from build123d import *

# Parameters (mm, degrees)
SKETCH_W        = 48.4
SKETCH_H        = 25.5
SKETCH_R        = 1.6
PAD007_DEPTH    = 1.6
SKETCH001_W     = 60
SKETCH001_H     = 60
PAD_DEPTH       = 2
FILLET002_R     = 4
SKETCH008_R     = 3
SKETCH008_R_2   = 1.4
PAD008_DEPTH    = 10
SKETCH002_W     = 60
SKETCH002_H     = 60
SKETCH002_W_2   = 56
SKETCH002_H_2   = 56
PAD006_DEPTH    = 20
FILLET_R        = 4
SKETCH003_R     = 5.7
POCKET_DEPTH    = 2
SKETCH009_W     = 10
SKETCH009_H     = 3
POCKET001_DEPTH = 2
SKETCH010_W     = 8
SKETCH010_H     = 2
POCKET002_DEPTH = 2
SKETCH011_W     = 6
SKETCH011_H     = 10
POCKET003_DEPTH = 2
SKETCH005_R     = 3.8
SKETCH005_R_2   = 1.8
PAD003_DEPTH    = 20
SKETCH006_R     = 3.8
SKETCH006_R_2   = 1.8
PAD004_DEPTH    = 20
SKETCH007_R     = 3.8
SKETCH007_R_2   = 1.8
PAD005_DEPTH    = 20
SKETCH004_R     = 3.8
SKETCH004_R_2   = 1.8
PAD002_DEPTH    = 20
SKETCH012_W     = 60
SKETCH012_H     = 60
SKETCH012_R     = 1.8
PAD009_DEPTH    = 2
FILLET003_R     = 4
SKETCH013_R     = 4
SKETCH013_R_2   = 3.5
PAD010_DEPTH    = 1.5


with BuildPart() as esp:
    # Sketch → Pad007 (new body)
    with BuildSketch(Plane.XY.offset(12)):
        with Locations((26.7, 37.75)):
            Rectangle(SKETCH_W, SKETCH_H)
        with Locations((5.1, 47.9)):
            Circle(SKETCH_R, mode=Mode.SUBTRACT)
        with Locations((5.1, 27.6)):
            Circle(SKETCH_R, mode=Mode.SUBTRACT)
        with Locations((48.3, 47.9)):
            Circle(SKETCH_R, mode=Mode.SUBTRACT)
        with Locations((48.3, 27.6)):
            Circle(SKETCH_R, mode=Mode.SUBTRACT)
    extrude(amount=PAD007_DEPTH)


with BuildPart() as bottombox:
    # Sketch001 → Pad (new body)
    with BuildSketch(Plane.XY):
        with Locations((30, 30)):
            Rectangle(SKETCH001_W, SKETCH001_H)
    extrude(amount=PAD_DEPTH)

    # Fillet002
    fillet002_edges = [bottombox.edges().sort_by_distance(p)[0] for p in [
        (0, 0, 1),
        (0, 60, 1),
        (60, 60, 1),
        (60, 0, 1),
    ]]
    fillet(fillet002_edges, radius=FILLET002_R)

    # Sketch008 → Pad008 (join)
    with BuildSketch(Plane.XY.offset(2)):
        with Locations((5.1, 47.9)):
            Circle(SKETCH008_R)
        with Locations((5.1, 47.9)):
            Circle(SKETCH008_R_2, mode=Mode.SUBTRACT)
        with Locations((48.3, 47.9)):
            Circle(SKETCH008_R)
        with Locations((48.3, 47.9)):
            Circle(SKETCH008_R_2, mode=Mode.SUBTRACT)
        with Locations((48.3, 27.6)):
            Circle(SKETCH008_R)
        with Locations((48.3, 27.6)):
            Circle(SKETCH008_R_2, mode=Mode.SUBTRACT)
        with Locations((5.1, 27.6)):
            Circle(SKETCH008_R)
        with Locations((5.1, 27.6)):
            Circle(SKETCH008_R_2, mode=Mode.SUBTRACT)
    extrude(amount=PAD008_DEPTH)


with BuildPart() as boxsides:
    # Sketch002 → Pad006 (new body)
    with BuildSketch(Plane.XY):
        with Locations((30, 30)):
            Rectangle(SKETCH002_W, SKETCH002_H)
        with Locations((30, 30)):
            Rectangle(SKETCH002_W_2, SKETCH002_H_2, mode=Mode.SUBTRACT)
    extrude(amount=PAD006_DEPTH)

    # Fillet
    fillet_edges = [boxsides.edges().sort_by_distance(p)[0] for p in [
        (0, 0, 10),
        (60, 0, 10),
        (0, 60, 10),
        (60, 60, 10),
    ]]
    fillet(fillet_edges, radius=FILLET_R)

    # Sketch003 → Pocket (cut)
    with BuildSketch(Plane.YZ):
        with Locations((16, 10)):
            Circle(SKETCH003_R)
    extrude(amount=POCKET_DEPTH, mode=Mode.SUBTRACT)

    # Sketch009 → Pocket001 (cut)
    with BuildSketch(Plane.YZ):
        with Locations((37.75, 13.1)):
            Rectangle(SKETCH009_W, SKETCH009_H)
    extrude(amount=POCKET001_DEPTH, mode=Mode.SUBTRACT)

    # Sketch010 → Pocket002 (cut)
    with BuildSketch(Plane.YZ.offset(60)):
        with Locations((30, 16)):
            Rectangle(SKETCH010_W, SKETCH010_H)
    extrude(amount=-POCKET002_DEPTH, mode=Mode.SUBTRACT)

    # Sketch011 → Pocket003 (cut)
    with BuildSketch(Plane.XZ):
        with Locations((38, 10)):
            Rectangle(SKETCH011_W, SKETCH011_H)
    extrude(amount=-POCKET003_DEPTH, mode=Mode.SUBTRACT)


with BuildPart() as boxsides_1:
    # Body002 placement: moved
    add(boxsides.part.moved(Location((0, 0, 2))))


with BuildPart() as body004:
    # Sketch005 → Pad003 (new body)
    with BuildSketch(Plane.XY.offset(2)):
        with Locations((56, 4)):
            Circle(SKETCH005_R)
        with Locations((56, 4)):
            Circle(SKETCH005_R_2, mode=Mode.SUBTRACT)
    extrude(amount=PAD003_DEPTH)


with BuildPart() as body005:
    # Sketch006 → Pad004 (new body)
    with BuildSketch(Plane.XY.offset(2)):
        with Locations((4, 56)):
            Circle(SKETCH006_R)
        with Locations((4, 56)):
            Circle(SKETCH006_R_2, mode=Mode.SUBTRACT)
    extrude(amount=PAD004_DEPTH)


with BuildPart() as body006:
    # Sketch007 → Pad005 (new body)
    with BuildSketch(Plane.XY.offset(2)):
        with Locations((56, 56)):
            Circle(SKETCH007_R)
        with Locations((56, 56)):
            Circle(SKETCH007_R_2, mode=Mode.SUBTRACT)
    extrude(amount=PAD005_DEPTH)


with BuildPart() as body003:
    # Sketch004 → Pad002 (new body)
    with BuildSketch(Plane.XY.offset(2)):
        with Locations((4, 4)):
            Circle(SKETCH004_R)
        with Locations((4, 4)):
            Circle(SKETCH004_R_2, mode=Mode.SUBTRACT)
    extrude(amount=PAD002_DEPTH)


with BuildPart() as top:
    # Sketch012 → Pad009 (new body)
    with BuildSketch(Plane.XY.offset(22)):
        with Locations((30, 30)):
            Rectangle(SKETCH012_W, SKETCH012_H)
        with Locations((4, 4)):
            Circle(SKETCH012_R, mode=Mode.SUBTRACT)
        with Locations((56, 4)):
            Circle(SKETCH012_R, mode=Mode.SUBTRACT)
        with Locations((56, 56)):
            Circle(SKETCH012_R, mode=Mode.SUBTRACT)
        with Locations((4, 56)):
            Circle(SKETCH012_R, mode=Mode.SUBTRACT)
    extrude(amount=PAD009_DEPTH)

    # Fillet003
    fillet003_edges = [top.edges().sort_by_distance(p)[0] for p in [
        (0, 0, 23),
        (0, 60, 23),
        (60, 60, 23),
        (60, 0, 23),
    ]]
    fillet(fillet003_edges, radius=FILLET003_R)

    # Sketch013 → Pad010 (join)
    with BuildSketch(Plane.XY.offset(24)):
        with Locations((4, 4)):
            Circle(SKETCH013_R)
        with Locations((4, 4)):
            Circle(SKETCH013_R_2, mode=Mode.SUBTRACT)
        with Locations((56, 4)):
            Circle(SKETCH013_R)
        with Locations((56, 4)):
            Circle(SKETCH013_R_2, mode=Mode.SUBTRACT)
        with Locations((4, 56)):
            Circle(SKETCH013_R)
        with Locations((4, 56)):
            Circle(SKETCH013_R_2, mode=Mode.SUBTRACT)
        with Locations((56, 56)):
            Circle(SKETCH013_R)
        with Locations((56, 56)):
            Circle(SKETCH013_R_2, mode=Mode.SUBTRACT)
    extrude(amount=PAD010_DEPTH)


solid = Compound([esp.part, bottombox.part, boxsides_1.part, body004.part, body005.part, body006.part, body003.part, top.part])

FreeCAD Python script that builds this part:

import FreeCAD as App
import Part
import Sketcher


def edges_at(feature, points):
    """Names of the edges that pass closest to the given points."""
    edges = feature.Shape.Edges
    near = lambda p: min(range(len(edges)), key=lambda i: edges[i].distToShape(Part.Vertex(*p))[0])
    return sorted({f"Edge{near(p) + 1}" for p in points})


def add_polygon(sketch, points):
    """Adds a closed chain of lines whose ends are joined by coincident constraints."""
    first, n = sketch.GeometryCount, len(points)
    for a, b in zip(points, points[1:] + points[:1]):
        sketch.addGeometry(Part.LineSegment(App.Vector(*a, 0), App.Vector(*b, 0)), False)
    for i in range(n):
        sketch.addConstraint(Sketcher.Constraint("Coincident", first + i, 2, first + (i + 1) % n, 1))

doc = App.newDocument("Part")
body = doc.addObject("PartDesign::Body", "Body")

sketch1 = body.newObject("Sketcher::SketchObject", "Sketch")
sketch1.AttachmentSupport = (doc.getObject("XY_Plane"), [""])
sketch1.MapMode = "FlatFace"
sketch1.AttachmentOffset = App.Placement(App.Vector(0, 0, 12), App.Rotation())
add_polygon(sketch1, [(2.5, 50.5), (2.5, 25), (50.9, 25), (50.9, 50.5)])
sketch1.addGeometry(Part.Circle(App.Vector(5.1, 27.6, 0), App.Vector(0, 0, 1), 1.6), False)
sketch1.addGeometry(Part.Circle(App.Vector(48.3, 27.6, 0), App.Vector(0, 0, 1), 1.6), False)
sketch1.addGeometry(Part.Circle(App.Vector(5.1, 47.9, 0), App.Vector(0, 0, 1), 1.6), False)
sketch1.addGeometry(Part.Circle(App.Vector(48.3, 47.9, 0), App.Vector(0, 0, 1), 1.6), False)
sketch1.addConstraint([
    Sketcher.Constraint("Vertical", 0),
    Sketcher.Constraint("Horizontal", 1),
    Sketcher.Constraint("Vertical", 2),
    Sketcher.Constraint("Horizontal", 3),
    Sketcher.Constraint("Equal", 4, 5),
    Sketcher.Constraint("Equal", 5, 6),
    Sketcher.Constraint("Equal", 6, 7),
    Sketcher.Constraint("Horizontal", 4, 3, 5, 3),
    Sketcher.Constraint("Horizontal", 6, 3, 7, 3),
    Sketcher.Constraint("Vertical", 4, 3, 6, 3),
    Sketcher.Constraint("Vertical", 5, 3, 7, 3),
    Sketcher.Constraint("Diameter", 4, 3.2),
    Sketcher.Constraint("DistanceX", 1, 1, 1, 2, 48.4),
    Sketcher.Constraint("DistanceY", 0, 2, 0, 1, 25.5),
    Sketcher.Constraint("DistanceY", -1, 1, 0, 2, 25.0),
    Sketcher.Constraint("DistanceX", -1, 1, 4, 3, 5.1),
    Sketcher.Constraint("DistanceY", -1, 1, 4, 3, 27.6),
    Sketcher.Constraint("DistanceX", -1, 1, 5, 3, 48.3),
    Sketcher.Constraint("DistanceY", -1, 1, 6, 3, 47.9),
    Sketcher.Constraint("DistanceX", -1, 1, 0, 2, 2.5),
])
pad1 = body.newObject("PartDesign::Pad", "Pad")
pad1.Profile = sketch1
pad1.Length = 1.6
body2 = doc.addObject("PartDesign::Body", "Body001")

sketch2 = body2.newObject("Sketcher::SketchObject", "Sketch001")
sketch2.AttachmentSupport = (doc.getObject("XY_Plane001"), [""])
sketch2.MapMode = "FlatFace"
add_polygon(sketch2, [(0, 60), (0, 0), (60, 0), (60, 60)])
sketch2.addConstraint([
    Sketcher.Constraint("Vertical", 0),
    Sketcher.Constraint("Horizontal", 1),
    Sketcher.Constraint("Vertical", 2),
    Sketcher.Constraint("Horizontal", 3),
    Sketcher.Constraint("Coincident", 0, 2, -1, 1),
    Sketcher.Constraint("Equal", 3, 0),
    Sketcher.Constraint("DistanceX", 1, 1, 1, 2, 60.0),
])
pad2 = body2.newObject("PartDesign::Pad", "Pad001")
pad2.Profile = sketch2
pad2.Length = 2
doc.recompute()

fillet = body2.newObject("PartDesign::Fillet", "Fillet")
fillet.Base = (pad2, edges_at(pad2, [
    (0, 0, 1),
    (0, 60, 1),
    (60, 60, 1),
    (60, 0, 1),
]))
fillet.Radius = 4

sketch3 = body2.newObject("Sketcher::SketchObject", "Sketch002")
sketch3.AttachmentSupport = (doc.getObject("XY_Plane001"), [""])
sketch3.MapMode = "FlatFace"
sketch3.AttachmentOffset = App.Placement(App.Vector(0, 0, 2), App.Rotation())
sketch3.addGeometry([
    Part.Circle(App.Vector(5.1, 47.9, 0), App.Vector(0, 0, 1), 3),
    Part.Circle(App.Vector(5.1, 47.9, 0), App.Vector(0, 0, 1), 1.4),
    Part.Circle(App.Vector(48.3, 47.9, 0), App.Vector(0, 0, 1), 3),
    Part.Circle(App.Vector(48.3, 47.9, 0), App.Vector(0, 0, 1), 1.4),
    Part.Circle(App.Vector(48.3, 27.6, 0), App.Vector(0, 0, 1), 3),
    Part.Circle(App.Vector(48.3, 27.6, 0), App.Vector(0, 0, 1), 1.4),
    Part.Circle(App.Vector(5.1, 27.6, 0), App.Vector(0, 0, 1), 3),
    Part.Circle(App.Vector(5.1, 27.6, 0), App.Vector(0, 0, 1), 1.4),
], False)
sketch3.addConstraint([
    Sketcher.Constraint("Coincident", 1, 3, 0, 3),
    Sketcher.Constraint("Coincident", 3, 3, 2, 3),
    Sketcher.Constraint("Coincident", 5, 3, 4, 3),
    Sketcher.Constraint("Coincident", 7, 3, 6, 3),
    Sketcher.Constraint("Equal", 0, 2),
    Sketcher.Constraint("Equal", 1, 3),
    Sketcher.Constraint("Equal", 2, 4),
    Sketcher.Constraint("Equal", 3, 5),
    Sketcher.Constraint("Equal", 4, 6),
    Sketcher.Constraint("Equal", 5, 7),
    Sketcher.Constraint("Horizontal", 1, 3, 2, 3),
    Sketcher.Constraint("Horizontal", 5, 3, 6, 3),
    Sketcher.Constraint("Vertical", 3, 3, 4, 3),
    Sketcher.Constraint("Vertical", 1, 3, 6, 3),
    Sketcher.Constraint("Diameter", 0, 6.0),
    Sketcher.Constraint("Diameter", 1, 2.8),
    Sketcher.Constraint("DistanceX", -1, 1, 0, 3, 5.1),
    Sketcher.Constraint("DistanceY", -1, 1, 0, 3, 47.9),
    Sketcher.Constraint("DistanceX", -1, 1, 2, 3, 48.3),
    Sketcher.Constraint("DistanceY", -1, 1, 4, 3, 27.6),
])
pad3 = body2.newObject("PartDesign::Pad", "Pad002")
pad3.Profile = sketch3
pad3.Length = 10
body3 = doc.addObject("PartDesign::Body", "Body002")

sketch4 = body3.newObject("Sketcher::SketchObject", "Sketch003")
sketch4.AttachmentSupport = (doc.getObject("XY_Plane002"), [""])
sketch4.MapMode = "FlatFace"
add_polygon(sketch4, [(0, 60), (0, 0), (60, 0), (60, 60)])
add_polygon(sketch4, [(58, 2), (2, 2), (2, 58), (58, 58)])
sketch4.addConstraint([
    Sketcher.Constraint("Vertical", 0),
    Sketcher.Constraint("Horizontal", 1),
    Sketcher.Constraint("Vertical", 2),
    Sketcher.Constraint("Horizontal", 3),
    Sketcher.Constraint("Horizontal", 4),
    Sketcher.Constraint("Vertical", 5),
    Sketcher.Constraint("Horizontal", 6),
    Sketcher.Constraint("Vertical", 7),
    Sketcher.Constraint("Coincident", 0, 2, -1, 1),
    Sketcher.Constraint("Equal", 3, 0),
    Sketcher.Constraint("Equal", 6, 5),
    Sketcher.Constraint("DistanceX", 1, 1, 1, 2, 60.0),
    Sketcher.Constraint("DistanceX", 4, 2, 4, 1, 56.0),
    Sketcher.Constraint("DistanceX", -1, 1, 4, 2, 2.0),
    Sketcher.Constraint("DistanceY", -1, 1, 4, 2, 2.0),
])
pad4 = body3.newObject("PartDesign::Pad", "Pad003")
pad4.Profile = sketch4
pad4.Length = 20
doc.recompute()

fillet2 = body3.newObject("PartDesign::Fillet", "Fillet001")
fillet2.Base = (pad4, edges_at(pad4, [
    (0, 0, 10),
    (60, 0, 10),
    (0, 60, 10),
    (60, 60, 10),
]))
fillet2.Radius = 4

sketch5 = body3.newObject("Sketcher::SketchObject", "Sketch004")
sketch5.AttachmentSupport = (doc.getObject("YZ_Plane002"), [""])
sketch5.MapMode = "FlatFace"
sketch5.addGeometry(Part.Circle(App.Vector(16, 10, 0), App.Vector(0, 0, 1), 5.7), False)
sketch5.addConstraint([
    Sketcher.Constraint("Diameter", 0, 11.4),
    Sketcher.Constraint("DistanceX", -1, 1, 0, 3, 16.0),
    Sketcher.Constraint("DistanceY", -1, 1, 0, 3, 10.0),
])
pocket1 = body3.newObject("PartDesign::Pocket", "Pocket")
pocket1.Profile = sketch5
pocket1.Length = 2
pocket1.Reversed = True

sketch6 = body3.newObject("Sketcher::SketchObject", "Sketch005")
sketch6.AttachmentSupport = (doc.getObject("YZ_Plane002"), [""])
sketch6.MapMode = "FlatFace"
add_polygon(sketch6, [(32.75, 14.6), (32.75, 11.6), (42.75, 11.6), (42.75, 14.6)])
sketch6.addConstraint([
    Sketcher.Constraint("Vertical", 0),
    Sketcher.Constraint("Horizontal", 1),
    Sketcher.Constraint("Vertical", 2),
    Sketcher.Constraint("Horizontal", 3),
    Sketcher.Constraint("DistanceX", 1, 1, 1, 2, 10.0),
    Sketcher.Constraint("DistanceY", 0, 2, 0, 1, 3.0),
    Sketcher.Constraint("DistanceY", -1, 1, 0, 2, 11.6),
    Sketcher.Constraint("DistanceX", -1, 1, 0, 2, 32.75),
])
pocket2 = body3.newObject("PartDesign::Pocket", "Pocket001")
pocket2.Profile = sketch6
pocket2.Length = 2
pocket2.Reversed = True

sketch7 = body3.newObject("Sketcher::SketchObject", "Sketch006")
sketch7.AttachmentSupport = (doc.getObject("YZ_Plane002"), [""])
sketch7.MapMode = "FlatFace"
sketch7.AttachmentOffset = App.Placement(App.Vector(0, 0, 60), App.Rotation())
add_polygon(sketch7, [(26, 17), (26, 15), (34, 15), (34, 17)])
sketch7.addConstraint([
    Sketcher.Constraint("Vertical", 0),
    Sketcher.Constraint("Horizontal", 1),
    Sketcher.Constraint("Vertical", 2),
    Sketcher.Constraint("Horizontal", 3),
    Sketcher.Constraint("DistanceX", 1, 1, 1, 2, 8.0),
    Sketcher.Constraint("DistanceY", 0, 2, 0, 1, 2.0),
    Sketcher.Constraint("DistanceX", -1, 1, 0, 2, 26.0),
    Sketcher.Constraint("DistanceY", -1, 1, 0, 2, 15.0),
])
pocket3 = body3.newObject("PartDesign::Pocket", "Pocket002")
pocket3.Profile = sketch7
pocket3.Length = 2

sketch8 = body3.newObject("Sketcher::SketchObject", "Sketch007")
sketch8.AttachmentSupport = (doc.getObject("XZ_Plane002"), [""])
sketch8.MapMode = "FlatFace"
add_polygon(sketch8, [(35, 15), (35, 5), (41, 5), (41, 15)])
sketch8.addConstraint([
    Sketcher.Constraint("Vertical", 0),
    Sketcher.Constraint("Horizontal", 1),
    Sketcher.Constraint("Vertical", 2),
    Sketcher.Constraint("Horizontal", 3),
    Sketcher.Constraint("DistanceX", 1, 1, 1, 2, 6.0),
    Sketcher.Constraint("DistanceY", 0, 2, 0, 1, 10.0),
    Sketcher.Constraint("DistanceX", -1, 1, 0, 2, 35.0),
    Sketcher.Constraint("DistanceY", -1, 1, 0, 2, 5.0),
])
pocket4 = body3.newObject("PartDesign::Pocket", "Pocket003")
pocket4.Profile = sketch8
pocket4.Length = 2
body4 = doc.addObject("PartDesign::Body", "Body003")
doc.recompute()

body3.Placement = App.Placement(App.Vector(0, 0, 2), App.Rotation(App.Vector(0, 0, 1), 0))
boolean = body4.newObject("PartDesign::Boolean", "Boolean")
boolean.Type = "Fuse"
boolean.addObjects([body3])
body5 = doc.addObject("PartDesign::Body", "Body004")

sketch9 = body5.newObject("Sketcher::SketchObject", "Sketch008")
sketch9.AttachmentSupport = (doc.getObject("XY_Plane004"), [""])
sketch9.MapMode = "FlatFace"
sketch9.AttachmentOffset = App.Placement(App.Vector(0, 0, 2), App.Rotation())
sketch9.addGeometry([
    Part.Circle(App.Vector(56, 4, 0), App.Vector(0, 0, 1), 3.8),
    Part.Circle(App.Vector(56, 4, 0), App.Vector(0, 0, 1), 1.8),
], False)
sketch9.addConstraint([
    Sketcher.Constraint("Coincident", 1, 3, 0, 3),
    Sketcher.Constraint("Diameter", 0, 7.6),
    Sketcher.Constraint("Diameter", 1, 3.6),
    Sketcher.Constraint("DistanceX", -1, 1, 0, 3, 56.0),
    Sketcher.Constraint("DistanceY", -1, 1, 0, 3, 4.0),
])
pad5 = body5.newObject("PartDesign::Pad", "Pad004")
pad5.Profile = sketch9
pad5.Length = 20
body6 = doc.addObject("PartDesign::Body", "Body005")

sketch10 = body6.newObject("Sketcher::SketchObject", "Sketch009")
sketch10.AttachmentSupport = (doc.getObject("XY_Plane005"), [""])
sketch10.MapMode = "FlatFace"
sketch10.AttachmentOffset = App.Placement(App.Vector(0, 0, 2), App.Rotation())
sketch10.addGeometry([
    Part.Circle(App.Vector(4, 56, 0), App.Vector(0, 0, 1), 3.8),
    Part.Circle(App.Vector(4, 56, 0), App.Vector(0, 0, 1), 1.8),
], False)
sketch10.addConstraint([
    Sketcher.Constraint("Coincident", 1, 3, 0, 3),
    Sketcher.Constraint("Diameter", 0, 7.6),
    Sketcher.Constraint("Diameter", 1, 3.6),
    Sketcher.Constraint("DistanceX", -1, 1, 0, 3, 4.0),
    Sketcher.Constraint("DistanceY", -1, 1, 0, 3, 56.0),
])
pad6 = body6.newObject("PartDesign::Pad", "Pad005")
pad6.Profile = sketch10
pad6.Length = 20
body7 = doc.addObject("PartDesign::Body", "Body006")

sketch11 = body7.newObject("Sketcher::SketchObject", "Sketch010")
sketch11.AttachmentSupport = (doc.getObject("XY_Plane006"), [""])
sketch11.MapMode = "FlatFace"
sketch11.AttachmentOffset = App.Placement(App.Vector(0, 0, 2), App.Rotation())
sketch11.addGeometry([
    Part.Circle(App.Vector(56, 56, 0), App.Vector(0, 0, 1), 3.8),
    Part.Circle(App.Vector(56, 56, 0), App.Vector(0, 0, 1), 1.8),
], False)
sketch11.addConstraint([
    Sketcher.Constraint("Coincident", 1, 3, 0, 3),
    Sketcher.Constraint("Diameter", 0, 7.6),
    Sketcher.Constraint("Diameter", 1, 3.6),
    Sketcher.Constraint("DistanceX", -1, 1, 0, 3, 56.0),
    Sketcher.Constraint("DistanceY", -1, 1, 0, 3, 56.0),
])
pad7 = body7.newObject("PartDesign::Pad", "Pad006")
pad7.Profile = sketch11
pad7.Length = 20
body8 = doc.addObject("PartDesign::Body", "Body007")

sketch12 = body8.newObject("Sketcher::SketchObject", "Sketch011")
sketch12.AttachmentSupport = (doc.getObject("XY_Plane007"), [""])
sketch12.MapMode = "FlatFace"
sketch12.AttachmentOffset = App.Placement(App.Vector(0, 0, 2), App.Rotation())
sketch12.addGeometry([
    Part.Circle(App.Vector(4, 4, 0), App.Vector(0, 0, 1), 3.8),
    Part.Circle(App.Vector(4, 4, 0), App.Vector(0, 0, 1), 1.8),
], False)
sketch12.addConstraint([
    Sketcher.Constraint("Coincident", 1, 3, 0, 3),
    Sketcher.Constraint("Diameter", 0, 7.6),
    Sketcher.Constraint("Diameter", 1, 3.6),
    Sketcher.Constraint("DistanceX", -1, 1, 0, 3, 4.0),
    Sketcher.Constraint("DistanceY", -1, 1, 0, 3, 4.0),
])
pad8 = body8.newObject("PartDesign::Pad", "Pad007")
pad8.Profile = sketch12
pad8.Length = 20
body9 = doc.addObject("PartDesign::Body", "Body008")

sketch13 = body9.newObject("Sketcher::SketchObject", "Sketch012")
sketch13.AttachmentSupport = (doc.getObject("XY_Plane008"), [""])
sketch13.MapMode = "FlatFace"
sketch13.AttachmentOffset = App.Placement(App.Vector(0, 0, 22), App.Rotation())
add_polygon(sketch13, [(0, 60), (0, 0), (60, 0), (60, 60)])
sketch13.addGeometry(Part.Circle(App.Vector(4, 4, 0), App.Vector(0, 0, 1), 1.8), False)
sketch13.addGeometry(Part.Circle(App.Vector(56, 4, 0), App.Vector(0, 0, 1), 1.8), False)
sketch13.addGeometry(Part.Circle(App.Vector(4, 56, 0), App.Vector(0, 0, 1), 1.8), False)
sketch13.addGeometry(Part.Circle(App.Vector(56, 56, 0), App.Vector(0, 0, 1), 1.8), False)
sketch13.addConstraint([
    Sketcher.Constraint("Vertical", 0),
    Sketcher.Constraint("Horizontal", 1),
    Sketcher.Constraint("Vertical", 2),
    Sketcher.Constraint("Horizontal", 3),
    Sketcher.Constraint("Coincident", 0, 2, -1, 1),
    Sketcher.Constraint("Equal", 4, 5),
    Sketcher.Constraint("Equal", 5, 6),
    Sketcher.Constraint("Equal", 6, 7),
    Sketcher.Constraint("Horizontal", 4, 3, 5, 3),
    Sketcher.Constraint("Horizontal", 6, 3, 7, 3),
    Sketcher.Constraint("Vertical", 4, 3, 6, 3),
    Sketcher.Constraint("Vertical", 5, 3, 7, 3),
    Sketcher.Constraint("Equal", 3, 0),
    Sketcher.Constraint("Diameter", 4, 3.6),
    Sketcher.Constraint("DistanceX", 1, 1, 1, 2, 60.0),
    Sketcher.Constraint("DistanceX", -1, 1, 4, 3, 4.0),
    Sketcher.Constraint("DistanceY", -1, 1, 4, 3, 4.0),
    Sketcher.Constraint("DistanceX", -1, 1, 5, 3, 56.0),
    Sketcher.Constraint("DistanceY", -1, 1, 6, 3, 56.0),
])
pad9 = body9.newObject("PartDesign::Pad", "Pad008")
pad9.Profile = sketch13
pad9.Length = 2
doc.recompute()

fillet3 = body9.newObject("PartDesign::Fillet", "Fillet002")
fillet3.Base = (pad9, edges_at(pad9, [
    (0, 0, 23),
    (0, 60, 23),
    (60, 60, 23),
    (60, 0, 23),
]))
fillet3.Radius = 4

sketch14 = body9.newObject("Sketcher::SketchObject", "Sketch013")
sketch14.AttachmentSupport = (doc.getObject("XY_Plane008"), [""])
sketch14.MapMode = "FlatFace"
sketch14.AttachmentOffset = App.Placement(App.Vector(0, 0, 24), App.Rotation())
sketch14.addGeometry([
    Part.Circle(App.Vector(4, 4, 0), App.Vector(0, 0, 1), 4),
    Part.Circle(App.Vector(4, 4, 0), App.Vector(0, 0, 1), 3.5),
    Part.Circle(App.Vector(56, 4, 0), App.Vector(0, 0, 1), 4),
    Part.Circle(App.Vector(56, 4, 0), App.Vector(0, 0, 1), 3.5),
    Part.Circle(App.Vector(4, 56, 0), App.Vector(0, 0, 1), 4),
    Part.Circle(App.Vector(4, 56, 0), App.Vector(0, 0, 1), 3.5),
    Part.Circle(App.Vector(56, 56, 0), App.Vector(0, 0, 1), 4),
    Part.Circle(App.Vector(56, 56, 0), App.Vector(0, 0, 1), 3.5),
], False)
sketch14.addConstraint([
    Sketcher.Constraint("Coincident", 1, 3, 0, 3),
    Sketcher.Constraint("Coincident", 3, 3, 2, 3),
    Sketcher.Constraint("Coincident", 5, 3, 4, 3),
    Sketcher.Constraint("Coincident", 7, 3, 6, 3),
    Sketcher.Constraint("Equal", 0, 2),
    Sketcher.Constraint("Equal", 1, 3),
    Sketcher.Constraint("Equal", 2, 4),
    Sketcher.Constraint("Equal", 3, 5),
    Sketcher.Constraint("Equal", 4, 6),
    Sketcher.Constraint("Equal", 5, 7),
    Sketcher.Constraint("Horizontal", 1, 3, 2, 3),
    Sketcher.Constraint("Horizontal", 5, 3, 6, 3),
    Sketcher.Constraint("Vertical", 1, 3, 4, 3),
    Sketcher.Constraint("Vertical", 3, 3, 6, 3),
    Sketcher.Constraint("Diameter", 0, 8.0),
    Sketcher.Constraint("Diameter", 1, 7.0),
    Sketcher.Constraint("DistanceX", -1, 1, 0, 3, 4.0),
    Sketcher.Constraint("DistanceY", -1, 1, 0, 3, 4.0),
    Sketcher.Constraint("DistanceX", -1, 1, 2, 3, 56.0),
    Sketcher.Constraint("DistanceY", -1, 1, 4, 3, 56.0),
])
pad10 = body9.newObject("PartDesign::Pad", "Pad009")
pad10.Profile = sketch14
pad10.Length = 1.5

doc.recompute()
